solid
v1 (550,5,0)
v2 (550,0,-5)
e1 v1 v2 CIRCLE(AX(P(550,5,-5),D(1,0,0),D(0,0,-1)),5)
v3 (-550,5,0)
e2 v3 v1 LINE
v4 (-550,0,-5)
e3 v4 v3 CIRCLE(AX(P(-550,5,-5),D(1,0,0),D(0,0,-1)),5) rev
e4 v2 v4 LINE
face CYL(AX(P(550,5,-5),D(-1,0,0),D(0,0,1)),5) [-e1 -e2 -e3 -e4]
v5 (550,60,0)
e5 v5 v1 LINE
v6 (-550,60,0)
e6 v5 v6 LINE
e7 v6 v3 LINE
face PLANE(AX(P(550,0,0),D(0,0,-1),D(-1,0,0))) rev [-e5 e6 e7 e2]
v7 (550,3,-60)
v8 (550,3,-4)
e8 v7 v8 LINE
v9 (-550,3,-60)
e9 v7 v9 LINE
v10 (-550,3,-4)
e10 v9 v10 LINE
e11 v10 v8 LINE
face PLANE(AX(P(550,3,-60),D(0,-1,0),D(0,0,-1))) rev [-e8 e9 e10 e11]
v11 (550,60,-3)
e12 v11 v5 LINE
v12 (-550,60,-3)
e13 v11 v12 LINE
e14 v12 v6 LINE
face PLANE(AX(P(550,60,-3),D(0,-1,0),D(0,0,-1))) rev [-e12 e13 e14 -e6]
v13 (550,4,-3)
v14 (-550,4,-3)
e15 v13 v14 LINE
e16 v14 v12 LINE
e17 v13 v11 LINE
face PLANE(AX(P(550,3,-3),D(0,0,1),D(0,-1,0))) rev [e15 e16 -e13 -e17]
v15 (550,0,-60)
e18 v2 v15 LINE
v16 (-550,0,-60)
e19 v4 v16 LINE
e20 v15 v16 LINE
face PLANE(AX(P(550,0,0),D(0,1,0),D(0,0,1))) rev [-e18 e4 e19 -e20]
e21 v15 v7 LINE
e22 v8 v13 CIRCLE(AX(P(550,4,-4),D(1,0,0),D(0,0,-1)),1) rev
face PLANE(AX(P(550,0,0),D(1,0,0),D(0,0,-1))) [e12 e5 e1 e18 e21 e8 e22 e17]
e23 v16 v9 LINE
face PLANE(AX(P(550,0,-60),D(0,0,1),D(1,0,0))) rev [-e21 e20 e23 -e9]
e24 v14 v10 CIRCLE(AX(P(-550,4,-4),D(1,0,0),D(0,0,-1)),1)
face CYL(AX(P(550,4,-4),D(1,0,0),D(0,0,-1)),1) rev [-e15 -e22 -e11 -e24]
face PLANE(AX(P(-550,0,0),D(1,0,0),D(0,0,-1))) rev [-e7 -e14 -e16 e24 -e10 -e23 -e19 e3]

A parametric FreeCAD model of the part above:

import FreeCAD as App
import Part
import Sketcher

V = App.Vector
Q = App.Units.Quantity


def edges_at(feature, points):
    """Names of the edges that pass closest to the given points."""
    edges = feature.Shape.Edges
    near = lambda p: min(range(len(edges)), key=lambda i: edges[i].distToShape(Part.Vertex(*p))[0])
    return sorted({f"Edge{near(p) + 1}" for p in points})


def add_polygon(sketch, points):
    """Adds a closed chain of lines whose ends are joined by coincident constraints."""
    first, n = sketch.GeometryCount, len(points)
    for a, b in zip(points, points[1:] + points[:1]):
        sketch.addGeometry(Part.LineSegment(App.Vector(*a, 0), App.Vector(*b, 0)), False)
    for i in range(n):
        sketch.addConstraint(Sketcher.Constraint("Coincident", first + i, 2, first + (i + 1) % n, 1))

doc = App.newDocument("Part")
body = doc.addObject("PartDesign::Body", "Body")

sketch1 = body.newObject("Sketcher::SketchObject", "Sketch")
sketch1.AttachmentSupport = (doc.getObject("YZ_Plane"), [""])
sketch1.MapMode = "FlatFace"
add_polygon(sketch1, [(60, 0), (0, 0), (0, -60), (3, -60), (3, -3), (60, -3)])
sketch1.addConstraint([
    Sketcher.Constraint("Horizontal", 0),
    Sketcher.Constraint("Vertical", 1),
    Sketcher.Constraint("Horizontal", 2),
    Sketcher.Constraint("Vertical", 3),
    Sketcher.Constraint("Horizontal", 4),
    Sketcher.Constraint("Vertical", 5),
    Sketcher.Constraint("Coincident", 0, 2, -1, 1),
    Sketcher.Constraint("Equal", 0, 1),
    Sketcher.Constraint("Equal", 4, 3),
    Sketcher.Constraint("DistanceX", 0, 2, 0, 1, Q("60 mm")),
    Sketcher.Constraint("DistanceX", 2, 1, 2, 2, Q("3 mm")),
])
pad1 = body.newObject("PartDesign::Pad", "Pad")
pad1.Profile = sketch1
pad1.Length = 1100
pad1.Midplane = True
doc.recompute()

fillet = body.newObject("PartDesign::Fillet", "Fillet")
fillet.Base = (pad1, edges_at(pad1, [(0, 0, 0)]))
fillet.Radius = 5
doc.recompute()

fillet2 = body.newObject("PartDesign::Fillet", "Fillet001")
fillet2.Base = (fillet, edges_at(fillet, [(0, 3, -3)]))
fillet2.Radius = 1

doc.recompute()
